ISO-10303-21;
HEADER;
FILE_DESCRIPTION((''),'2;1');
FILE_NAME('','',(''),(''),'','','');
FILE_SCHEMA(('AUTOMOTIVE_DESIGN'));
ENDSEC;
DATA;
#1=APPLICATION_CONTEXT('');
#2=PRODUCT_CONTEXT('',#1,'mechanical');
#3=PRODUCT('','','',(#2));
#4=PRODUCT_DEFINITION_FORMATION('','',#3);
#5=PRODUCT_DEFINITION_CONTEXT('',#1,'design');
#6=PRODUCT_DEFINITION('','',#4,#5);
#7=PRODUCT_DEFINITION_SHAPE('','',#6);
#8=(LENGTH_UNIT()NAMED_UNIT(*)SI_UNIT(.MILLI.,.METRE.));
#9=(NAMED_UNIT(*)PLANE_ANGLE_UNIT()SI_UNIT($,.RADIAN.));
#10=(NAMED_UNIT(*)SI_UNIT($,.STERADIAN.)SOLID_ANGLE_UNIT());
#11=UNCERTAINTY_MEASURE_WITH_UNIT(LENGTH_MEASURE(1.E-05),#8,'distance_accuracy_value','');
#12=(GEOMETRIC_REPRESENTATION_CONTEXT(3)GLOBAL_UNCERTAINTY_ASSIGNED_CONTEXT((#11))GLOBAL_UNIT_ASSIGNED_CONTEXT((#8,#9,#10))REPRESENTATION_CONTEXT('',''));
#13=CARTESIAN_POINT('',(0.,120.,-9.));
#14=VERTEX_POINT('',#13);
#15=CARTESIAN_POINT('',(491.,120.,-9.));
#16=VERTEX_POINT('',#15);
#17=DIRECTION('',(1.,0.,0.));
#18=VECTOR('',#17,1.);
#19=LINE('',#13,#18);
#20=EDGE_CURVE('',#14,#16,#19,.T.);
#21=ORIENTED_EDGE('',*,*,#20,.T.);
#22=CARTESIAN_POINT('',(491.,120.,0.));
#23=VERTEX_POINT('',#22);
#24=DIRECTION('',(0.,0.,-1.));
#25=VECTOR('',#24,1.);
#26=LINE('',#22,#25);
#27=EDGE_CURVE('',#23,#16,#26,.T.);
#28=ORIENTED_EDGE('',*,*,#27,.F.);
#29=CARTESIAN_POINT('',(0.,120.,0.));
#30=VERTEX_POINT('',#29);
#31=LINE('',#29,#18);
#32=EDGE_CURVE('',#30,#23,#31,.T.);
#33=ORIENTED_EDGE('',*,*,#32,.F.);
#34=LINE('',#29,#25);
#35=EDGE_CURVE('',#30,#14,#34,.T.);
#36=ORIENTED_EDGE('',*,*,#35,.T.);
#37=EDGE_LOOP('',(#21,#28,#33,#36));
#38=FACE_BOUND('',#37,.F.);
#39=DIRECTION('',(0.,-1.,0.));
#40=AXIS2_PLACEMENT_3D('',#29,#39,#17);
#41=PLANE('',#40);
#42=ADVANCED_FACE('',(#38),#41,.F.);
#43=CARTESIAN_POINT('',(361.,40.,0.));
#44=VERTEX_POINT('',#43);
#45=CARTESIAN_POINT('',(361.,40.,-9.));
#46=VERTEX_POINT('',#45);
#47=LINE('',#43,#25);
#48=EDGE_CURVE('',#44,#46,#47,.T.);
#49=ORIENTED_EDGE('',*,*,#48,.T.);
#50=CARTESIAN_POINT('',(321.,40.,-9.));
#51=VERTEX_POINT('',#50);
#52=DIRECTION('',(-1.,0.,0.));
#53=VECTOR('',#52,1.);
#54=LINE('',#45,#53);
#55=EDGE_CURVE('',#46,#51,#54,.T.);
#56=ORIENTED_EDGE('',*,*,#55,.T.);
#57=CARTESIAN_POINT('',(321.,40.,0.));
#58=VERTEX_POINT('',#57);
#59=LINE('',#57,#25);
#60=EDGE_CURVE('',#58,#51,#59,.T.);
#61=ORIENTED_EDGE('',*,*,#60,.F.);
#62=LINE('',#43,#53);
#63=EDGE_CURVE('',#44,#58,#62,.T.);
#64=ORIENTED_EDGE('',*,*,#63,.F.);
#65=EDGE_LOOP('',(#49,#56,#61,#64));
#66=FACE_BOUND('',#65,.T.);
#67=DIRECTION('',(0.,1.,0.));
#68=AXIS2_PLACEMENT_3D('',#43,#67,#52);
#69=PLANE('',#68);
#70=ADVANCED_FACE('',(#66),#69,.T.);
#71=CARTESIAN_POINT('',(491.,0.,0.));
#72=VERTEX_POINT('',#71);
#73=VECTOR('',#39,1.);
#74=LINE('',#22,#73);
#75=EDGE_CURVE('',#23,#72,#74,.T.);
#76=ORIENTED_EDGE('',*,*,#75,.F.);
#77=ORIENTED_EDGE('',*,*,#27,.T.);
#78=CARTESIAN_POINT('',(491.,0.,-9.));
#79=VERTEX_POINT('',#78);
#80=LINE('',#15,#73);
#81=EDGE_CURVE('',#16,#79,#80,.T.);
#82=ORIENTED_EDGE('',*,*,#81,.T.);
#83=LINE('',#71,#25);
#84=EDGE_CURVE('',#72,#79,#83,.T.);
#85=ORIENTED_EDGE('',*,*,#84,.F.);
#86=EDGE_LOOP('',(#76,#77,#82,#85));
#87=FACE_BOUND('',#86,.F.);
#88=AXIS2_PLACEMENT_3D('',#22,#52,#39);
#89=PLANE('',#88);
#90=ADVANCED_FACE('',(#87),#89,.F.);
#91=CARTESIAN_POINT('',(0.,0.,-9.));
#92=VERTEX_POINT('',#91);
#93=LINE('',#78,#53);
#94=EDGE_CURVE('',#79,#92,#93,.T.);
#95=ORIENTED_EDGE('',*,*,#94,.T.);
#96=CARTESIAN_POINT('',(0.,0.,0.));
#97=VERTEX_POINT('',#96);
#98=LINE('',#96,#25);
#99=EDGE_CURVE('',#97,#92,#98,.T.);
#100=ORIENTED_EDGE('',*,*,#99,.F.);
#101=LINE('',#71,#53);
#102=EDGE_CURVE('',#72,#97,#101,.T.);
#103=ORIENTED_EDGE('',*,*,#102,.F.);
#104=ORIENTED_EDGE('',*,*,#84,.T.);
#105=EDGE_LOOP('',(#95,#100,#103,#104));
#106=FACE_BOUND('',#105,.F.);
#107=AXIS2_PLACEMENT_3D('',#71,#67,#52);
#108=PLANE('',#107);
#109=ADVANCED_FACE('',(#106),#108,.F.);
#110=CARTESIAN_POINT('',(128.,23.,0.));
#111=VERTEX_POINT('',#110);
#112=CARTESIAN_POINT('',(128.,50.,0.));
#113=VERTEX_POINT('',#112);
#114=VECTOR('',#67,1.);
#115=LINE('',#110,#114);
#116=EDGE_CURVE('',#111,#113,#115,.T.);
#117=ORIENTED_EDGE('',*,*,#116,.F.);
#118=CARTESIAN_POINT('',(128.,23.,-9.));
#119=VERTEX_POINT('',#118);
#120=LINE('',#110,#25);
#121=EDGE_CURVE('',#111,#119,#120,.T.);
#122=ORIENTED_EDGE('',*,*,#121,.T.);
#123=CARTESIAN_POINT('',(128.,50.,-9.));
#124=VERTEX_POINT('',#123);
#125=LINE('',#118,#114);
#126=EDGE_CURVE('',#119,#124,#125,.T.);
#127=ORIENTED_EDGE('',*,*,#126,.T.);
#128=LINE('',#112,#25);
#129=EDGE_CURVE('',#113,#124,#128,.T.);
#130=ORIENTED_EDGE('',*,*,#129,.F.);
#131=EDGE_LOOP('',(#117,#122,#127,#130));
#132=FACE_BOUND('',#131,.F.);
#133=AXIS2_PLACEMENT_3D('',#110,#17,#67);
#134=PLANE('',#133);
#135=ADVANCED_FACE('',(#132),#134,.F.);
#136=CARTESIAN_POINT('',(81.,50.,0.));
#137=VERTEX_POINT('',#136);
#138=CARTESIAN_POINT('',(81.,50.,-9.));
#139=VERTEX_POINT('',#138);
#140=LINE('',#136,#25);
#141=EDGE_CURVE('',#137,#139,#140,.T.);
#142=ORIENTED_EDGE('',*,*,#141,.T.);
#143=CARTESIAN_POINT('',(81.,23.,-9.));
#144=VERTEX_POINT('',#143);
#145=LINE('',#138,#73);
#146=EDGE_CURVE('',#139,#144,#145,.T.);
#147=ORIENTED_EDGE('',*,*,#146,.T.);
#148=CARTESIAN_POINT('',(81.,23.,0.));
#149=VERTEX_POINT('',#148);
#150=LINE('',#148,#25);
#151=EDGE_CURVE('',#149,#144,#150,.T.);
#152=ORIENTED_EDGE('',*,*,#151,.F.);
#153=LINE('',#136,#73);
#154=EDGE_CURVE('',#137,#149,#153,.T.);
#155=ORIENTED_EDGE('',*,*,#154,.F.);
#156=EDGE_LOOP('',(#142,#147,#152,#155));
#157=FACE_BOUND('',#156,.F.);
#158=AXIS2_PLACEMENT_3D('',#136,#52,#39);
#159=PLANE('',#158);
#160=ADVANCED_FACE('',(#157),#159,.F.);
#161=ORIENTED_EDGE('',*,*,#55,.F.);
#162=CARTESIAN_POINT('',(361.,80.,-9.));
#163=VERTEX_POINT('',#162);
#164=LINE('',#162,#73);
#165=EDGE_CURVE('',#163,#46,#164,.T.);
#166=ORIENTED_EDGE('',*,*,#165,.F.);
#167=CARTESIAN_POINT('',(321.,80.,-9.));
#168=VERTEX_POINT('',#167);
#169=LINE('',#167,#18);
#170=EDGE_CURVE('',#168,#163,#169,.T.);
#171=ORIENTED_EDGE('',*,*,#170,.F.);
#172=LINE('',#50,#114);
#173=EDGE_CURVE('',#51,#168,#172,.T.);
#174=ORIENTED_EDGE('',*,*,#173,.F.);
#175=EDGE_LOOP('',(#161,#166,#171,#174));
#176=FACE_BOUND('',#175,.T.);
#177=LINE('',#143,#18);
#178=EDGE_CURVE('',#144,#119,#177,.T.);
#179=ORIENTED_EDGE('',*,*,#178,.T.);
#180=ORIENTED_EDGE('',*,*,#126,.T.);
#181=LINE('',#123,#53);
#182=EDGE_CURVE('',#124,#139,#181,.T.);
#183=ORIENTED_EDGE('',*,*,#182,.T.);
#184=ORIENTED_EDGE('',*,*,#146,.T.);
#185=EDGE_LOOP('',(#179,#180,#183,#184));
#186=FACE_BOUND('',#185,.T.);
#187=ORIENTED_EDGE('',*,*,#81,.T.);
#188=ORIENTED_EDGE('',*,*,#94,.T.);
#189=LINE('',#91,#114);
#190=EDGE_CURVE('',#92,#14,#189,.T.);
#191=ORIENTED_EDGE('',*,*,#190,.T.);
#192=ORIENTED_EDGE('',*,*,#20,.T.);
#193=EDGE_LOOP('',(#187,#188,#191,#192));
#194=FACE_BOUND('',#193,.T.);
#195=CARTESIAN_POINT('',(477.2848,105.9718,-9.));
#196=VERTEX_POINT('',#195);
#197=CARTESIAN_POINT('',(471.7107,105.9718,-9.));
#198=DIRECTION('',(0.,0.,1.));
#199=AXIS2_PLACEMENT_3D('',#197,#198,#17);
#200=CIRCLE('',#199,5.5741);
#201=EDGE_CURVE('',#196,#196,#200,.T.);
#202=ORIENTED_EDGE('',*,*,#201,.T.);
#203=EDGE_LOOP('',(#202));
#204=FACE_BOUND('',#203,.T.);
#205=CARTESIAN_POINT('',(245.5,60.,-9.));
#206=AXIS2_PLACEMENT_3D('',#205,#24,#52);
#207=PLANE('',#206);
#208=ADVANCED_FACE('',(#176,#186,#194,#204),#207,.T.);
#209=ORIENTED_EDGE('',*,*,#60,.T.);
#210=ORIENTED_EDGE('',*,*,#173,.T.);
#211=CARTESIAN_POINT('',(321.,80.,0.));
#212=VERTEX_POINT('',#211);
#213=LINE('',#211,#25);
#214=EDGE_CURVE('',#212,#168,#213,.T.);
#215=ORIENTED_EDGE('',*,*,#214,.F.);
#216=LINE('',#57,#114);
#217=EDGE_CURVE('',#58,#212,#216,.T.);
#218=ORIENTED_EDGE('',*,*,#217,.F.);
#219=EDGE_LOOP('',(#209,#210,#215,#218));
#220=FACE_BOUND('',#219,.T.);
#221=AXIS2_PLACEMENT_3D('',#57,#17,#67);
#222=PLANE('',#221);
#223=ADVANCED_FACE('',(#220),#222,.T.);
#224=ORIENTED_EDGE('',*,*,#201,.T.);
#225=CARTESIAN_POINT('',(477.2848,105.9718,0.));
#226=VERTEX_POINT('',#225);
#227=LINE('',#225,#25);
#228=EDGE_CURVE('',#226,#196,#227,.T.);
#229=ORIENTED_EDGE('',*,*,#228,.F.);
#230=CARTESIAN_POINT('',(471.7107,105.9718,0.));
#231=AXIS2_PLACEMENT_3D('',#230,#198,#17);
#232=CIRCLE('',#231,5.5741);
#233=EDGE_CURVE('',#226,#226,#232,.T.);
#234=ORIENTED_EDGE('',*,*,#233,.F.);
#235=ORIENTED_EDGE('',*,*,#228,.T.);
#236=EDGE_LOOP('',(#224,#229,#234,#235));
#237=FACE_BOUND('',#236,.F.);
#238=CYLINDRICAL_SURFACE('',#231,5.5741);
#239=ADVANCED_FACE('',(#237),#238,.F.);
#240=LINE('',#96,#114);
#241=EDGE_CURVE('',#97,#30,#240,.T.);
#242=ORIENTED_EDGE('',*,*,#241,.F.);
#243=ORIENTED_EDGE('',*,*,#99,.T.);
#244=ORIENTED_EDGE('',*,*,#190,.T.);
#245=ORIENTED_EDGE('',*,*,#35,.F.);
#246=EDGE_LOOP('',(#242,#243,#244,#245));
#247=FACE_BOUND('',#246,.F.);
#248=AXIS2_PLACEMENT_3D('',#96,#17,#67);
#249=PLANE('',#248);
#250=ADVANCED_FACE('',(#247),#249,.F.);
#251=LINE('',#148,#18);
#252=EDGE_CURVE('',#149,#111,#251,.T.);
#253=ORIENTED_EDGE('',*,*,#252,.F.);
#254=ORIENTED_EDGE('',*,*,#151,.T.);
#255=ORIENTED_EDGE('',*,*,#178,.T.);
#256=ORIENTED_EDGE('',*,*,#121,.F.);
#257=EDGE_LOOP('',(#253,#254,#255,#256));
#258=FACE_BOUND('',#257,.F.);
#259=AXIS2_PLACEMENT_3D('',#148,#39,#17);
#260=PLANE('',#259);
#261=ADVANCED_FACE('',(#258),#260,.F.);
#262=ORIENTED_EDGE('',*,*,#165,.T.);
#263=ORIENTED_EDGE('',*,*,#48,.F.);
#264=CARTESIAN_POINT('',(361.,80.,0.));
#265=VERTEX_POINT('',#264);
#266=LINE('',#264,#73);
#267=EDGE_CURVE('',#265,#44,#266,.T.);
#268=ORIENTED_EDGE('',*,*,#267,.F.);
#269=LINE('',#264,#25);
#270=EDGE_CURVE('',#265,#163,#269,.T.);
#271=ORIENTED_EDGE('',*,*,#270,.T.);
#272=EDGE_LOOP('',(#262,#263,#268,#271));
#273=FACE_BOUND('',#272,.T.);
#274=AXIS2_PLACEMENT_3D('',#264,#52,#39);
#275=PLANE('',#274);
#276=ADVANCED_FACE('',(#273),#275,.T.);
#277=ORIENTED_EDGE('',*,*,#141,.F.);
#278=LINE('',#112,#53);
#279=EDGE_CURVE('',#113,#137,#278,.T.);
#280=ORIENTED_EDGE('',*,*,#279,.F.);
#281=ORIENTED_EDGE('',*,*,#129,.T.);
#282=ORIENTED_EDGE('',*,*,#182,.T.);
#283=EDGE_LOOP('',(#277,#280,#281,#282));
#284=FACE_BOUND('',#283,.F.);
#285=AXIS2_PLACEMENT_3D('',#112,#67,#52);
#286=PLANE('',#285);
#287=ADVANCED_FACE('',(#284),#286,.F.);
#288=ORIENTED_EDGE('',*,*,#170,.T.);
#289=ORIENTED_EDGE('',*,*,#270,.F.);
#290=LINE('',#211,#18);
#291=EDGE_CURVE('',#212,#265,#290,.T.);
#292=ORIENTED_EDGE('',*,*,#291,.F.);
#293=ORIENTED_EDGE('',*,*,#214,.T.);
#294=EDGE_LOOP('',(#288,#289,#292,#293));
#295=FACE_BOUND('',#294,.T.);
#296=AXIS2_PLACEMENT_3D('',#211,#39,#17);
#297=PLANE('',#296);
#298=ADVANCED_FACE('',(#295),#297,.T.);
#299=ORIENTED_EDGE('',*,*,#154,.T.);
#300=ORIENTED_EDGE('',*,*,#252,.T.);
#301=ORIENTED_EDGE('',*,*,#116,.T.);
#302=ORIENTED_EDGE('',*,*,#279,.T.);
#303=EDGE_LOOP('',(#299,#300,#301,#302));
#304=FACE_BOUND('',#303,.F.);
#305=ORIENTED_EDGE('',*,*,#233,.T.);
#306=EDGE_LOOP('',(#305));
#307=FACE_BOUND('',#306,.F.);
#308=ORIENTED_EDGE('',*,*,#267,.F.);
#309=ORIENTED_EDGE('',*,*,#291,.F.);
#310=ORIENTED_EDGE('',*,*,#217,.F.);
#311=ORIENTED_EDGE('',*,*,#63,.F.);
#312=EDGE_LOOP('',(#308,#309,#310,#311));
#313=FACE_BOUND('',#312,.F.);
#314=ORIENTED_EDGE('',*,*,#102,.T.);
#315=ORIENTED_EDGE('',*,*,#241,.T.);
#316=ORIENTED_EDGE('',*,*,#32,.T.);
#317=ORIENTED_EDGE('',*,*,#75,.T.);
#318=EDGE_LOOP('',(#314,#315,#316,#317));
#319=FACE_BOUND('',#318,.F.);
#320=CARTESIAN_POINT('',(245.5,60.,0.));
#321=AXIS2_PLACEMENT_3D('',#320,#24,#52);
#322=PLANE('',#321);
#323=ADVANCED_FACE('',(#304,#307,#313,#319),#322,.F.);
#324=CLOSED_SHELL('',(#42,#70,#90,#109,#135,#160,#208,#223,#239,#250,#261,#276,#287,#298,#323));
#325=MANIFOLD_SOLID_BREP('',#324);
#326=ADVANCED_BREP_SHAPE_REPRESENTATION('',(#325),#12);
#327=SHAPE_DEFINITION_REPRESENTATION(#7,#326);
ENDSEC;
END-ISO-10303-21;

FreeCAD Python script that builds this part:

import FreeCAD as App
import Part
import Sketcher

V = App.Vector

doc = App.newDocument("Part")
body = doc.addObject("PartDesign::Body", "Body")

sketch1 = doc.addObject("Sketcher::SketchObject", "Sketch")
body.addObject(sketch1)
sketch1.AttachmentSupport = (doc.XY_Plane, [""])
sketch1.MapMode = "FlatFace"
sketch1.addGeometry([
    Part.LineSegment(V(491, 0, 0), V(491, 120, 0)),
    Part.LineSegment(V(491, 120, 0), V(0, 120, 0)),
    Part.LineSegment(V(0, 120, 0), V(0, 0, 0)),
    Part.LineSegment(V(0, 0, 0), V(491, 0, 0)),
    Part.LineSegment(V(128, 50, 0), V(128, 23, 0)),
    Part.LineSegment(V(128, 23, 0), V(81, 23, 0)),
    Part.LineSegment(V(81, 23, 0), V(81, 50, 0)),
    Part.LineSegment(V(81, 50, 0), V(128, 50, 0)),
    Part.LineSegment(V(321, 80, 0), V(361, 80, 0)),
    Part.LineSegment(V(361, 80, 0), V(361, 40, 0)),
    Part.LineSegment(V(361, 40, 0), V(321, 40, 0)),
    Part.LineSegment(V(321, 40, 0), V(321, 80, 0)),
    Part.Circle(V(472, 106, 0), V(0, 0, 1), 6),
], False)
sketch1.addConstraint([
    Sketcher.Constraint("Coincident", 0, 2, 1, 1),
    Sketcher.Constraint("Coincident", 1, 2, 2, 1),
    Sketcher.Constraint("Coincident", 2, 2, 3, 1),
    Sketcher.Constraint("Coincident", 3, 2, 0, 1),
    Sketcher.Constraint("Coincident", 4, 2, 5, 1),
    Sketcher.Constraint("Coincident", 5, 2, 6, 1),
    Sketcher.Constraint("Coincident", 6, 2, 7, 1),
    Sketcher.Constraint("Coincident", 7, 2, 4, 1),
    Sketcher.Constraint("Coincident", 8, 2, 9, 1),
    Sketcher.Constraint("Coincident", 9, 2, 10, 1),
    Sketcher.Constraint("Coincident", 10, 2, 11, 1),
    Sketcher.Constraint("Coincident", 11, 2, 8, 1),
    Sketcher.Constraint("Vertical", 0),
    Sketcher.Constraint("Horizontal", 1),
    Sketcher.Constraint("Vertical", 2),
    Sketcher.Constraint("Horizontal", 3),
    Sketcher.Constraint("Vertical", 4),
    Sketcher.Constraint("Horizontal", 5),
    Sketcher.Constraint("Vertical", 6),
    Sketcher.Constraint("Horizontal", 7),
    Sketcher.Constraint("Horizontal", 8),
    Sketcher.Constraint("Vertical", 9),
    Sketcher.Constraint("Horizontal", 10),
    Sketcher.Constraint("Vertical", 11),
    Sketcher.Constraint("Coincident", 2, 2, -1, 1),
    Sketcher.Constraint("Equal", 10, 9),
    Sketcher.Constraint("DistanceX", 1, 2, 1, 1, 491.0),
    Sketcher.Constraint("DistanceX", 5, 2, 5, 1, 47.0),
    Sketcher.Constraint("DistanceX", 8, 1, 8, 2, 40.0),
    Sketcher.Constraint("DistanceY", 0, 1, 0, 2, 120.0),
    Sketcher.Constraint("DistanceY", 4, 2, 4, 1, 27.0),
    Sketcher.Constraint("DistanceX", -1, 1, 4, 2, 128.0),
    Sketcher.Constraint("DistanceY", -1, 1, 4, 2, 23.0),
    Sketcher.Constraint("DistanceX", -1, 1, 8, 2, 361.0),
    Sketcher.Constraint("DistanceY", -1, 1, 8, 2, 80.0),
    Sketcher.Constraint("Diameter", 12, 11.1482),
    Sketcher.Constraint("DistanceX", -1, 1, 12, 3, 471.7107),
    Sketcher.Constraint("DistanceY", -1, 1, 12, 3, 105.9718),
])
pad1 = doc.addObject("PartDesign::Pad", "Pad")
body.addObject(pad1)
pad1.Profile = sketch1
pad1.Length = 9
pad1.Reversed = True

doc.recompute()
